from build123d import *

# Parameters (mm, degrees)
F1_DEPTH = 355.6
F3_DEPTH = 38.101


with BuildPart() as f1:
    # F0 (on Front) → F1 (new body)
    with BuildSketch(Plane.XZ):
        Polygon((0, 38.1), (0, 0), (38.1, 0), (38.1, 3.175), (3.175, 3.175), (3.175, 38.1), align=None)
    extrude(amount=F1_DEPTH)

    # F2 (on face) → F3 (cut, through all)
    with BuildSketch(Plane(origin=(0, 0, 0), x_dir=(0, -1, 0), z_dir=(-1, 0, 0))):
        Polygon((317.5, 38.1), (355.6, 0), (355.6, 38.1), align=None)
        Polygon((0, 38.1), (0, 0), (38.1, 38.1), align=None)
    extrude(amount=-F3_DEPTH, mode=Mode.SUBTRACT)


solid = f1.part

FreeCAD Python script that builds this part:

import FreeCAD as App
import Part
import Sketcher
Q = App.Units.Quantity

doc = App.newDocument("Part")
body = doc.addObject("PartDesign::Body", "Body")

sketch1 = doc.addObject("Sketcher::SketchObject", "Sketch")
body.addObject(sketch1)
sketch1.AttachmentSupport = (doc.XZ_Plane, [""])
sketch1.MapMode = "FlatFace"
sketch1.addGeometry([
    Part.LineSegment(App.Vector(0, 38.1, 0), App.Vector(0, 0, 0)),
    Part.LineSegment(App.Vector(0, 0, 0), App.Vector(38.1, 0, 0)),
    Part.LineSegment(App.Vector(38.1, 0, 0), App.Vector(38.1, 3.175, 0)),
    Part.LineSegment(App.Vector(38.1, 3.175, 0), App.Vector(3.175, 3.175, 0)),
    Part.LineSegment(App.Vector(3.175, 3.175, 0), App.Vector(3.175, 38.1, 0)),
    Part.LineSegment(App.Vector(3.175, 38.1, 0), App.Vector(0, 38.1, 0)),
], False)
sketch1.addConstraint([
    Sketcher.Constraint("Coincident", 0, 2, 1, 1),
    Sketcher.Constraint("Coincident", 1, 2, 2, 1),
    Sketcher.Constraint("Coincident", 2, 2, 3, 1),
    Sketcher.Constraint("Coincident", 3, 2, 4, 1),
    Sketcher.Constraint("Coincident", 4, 2, 5, 1),
    Sketcher.Constraint("Coincident", 5, 2, 0, 1),
    Sketcher.Constraint("Vertical", 0),
    Sketcher.Constraint("Horizontal", 1),
    Sketcher.Constraint("Vertical", 2),
    Sketcher.Constraint("Horizontal", 3),
    Sketcher.Constraint("Vertical", 4),
    Sketcher.Constraint("Horizontal", 5),
    Sketcher.Constraint("Coincident", 0, 2, -1, 1),
    Sketcher.Constraint("Equal", 1, 0),
    Sketcher.Constraint("Equal", 5, 2),
    Sketcher.Constraint("DistanceX", 1, 1, 1, 2, Q("1.5 in")),
    Sketcher.Constraint("DistanceX", 3, 2, 3, 1, Q("1.375 in")),
])
pad1 = doc.addObject("PartDesign::Pad", "Pad")
body.addObject(pad1)
pad1.Profile = sketch1
pad1.Length = Q("14 in")

sketch2 = doc.addObject("Sketcher::SketchObject", "Sketch001")
body.addObject(sketch2)
sketch2.AttachmentSupport = (doc.YZ_Plane, [""])
sketch2.MapMode = "FlatFace"
sketch2.addGeometry([
    Part.LineSegment(App.Vector(-317.5, 38.1, 0), App.Vector(-355.6, 0, 0)),
    Part.LineSegment(App.Vector(-355.6, 0, 0), App.Vector(-355.6, 38.1, 0)),
    Part.LineSegment(App.Vector(-355.6, 38.1, 0), App.Vector(-317.5, 38.1, 0)),
    Part.LineSegment(App.Vector(0, 38.1, 0), App.Vector(0, 0, 0)),
    Part.LineSegment(App.Vector(0, 0, 0), App.Vector(-38.1, 38.1, 0)),
    Part.LineSegment(App.Vector(-38.1, 38.1, 0), App.Vector(0, 38.1, 0)),
], False)
sketch2.addConstraint([
    Sketcher.Constraint("Coincident", 0, 2, 1, 1),
    Sketcher.Constraint("Coincident", 1, 2, 2, 1),
    Sketcher.Constraint("Coincident", 2, 2, 0, 1),
    Sketcher.Constraint("Coincident", 3, 2, 4, 1),
    Sketcher.Constraint("Coincident", 4, 2, 5, 1),
    Sketcher.Constraint("Coincident", 5, 2, 3, 1),
    Sketcher.Constraint("Vertical", 1),
    Sketcher.Constraint("Horizontal", 2),
    Sketcher.Constraint("Vertical", 3),
    Sketcher.Constraint("Horizontal", 5),
    Sketcher.Constraint("Coincident", 3, 2, -1, 1),
    Sketcher.Constraint("PointOnObject", 0, 2, -1),
    Sketcher.Constraint("Perpendicular", 0, 4),
    Sketcher.Constraint("Horizontal", 2, 2, 4, 2),
    Sketcher.Constraint("Equal", 2, 5),
    Sketcher.Constraint("DistanceX", 2, 1, 2, 2, Q("1.5 in")),
    Sketcher.Constraint("DistanceX", 0, 2, -1, 1, Q("14 in")),
])
pocket1 = doc.addObject("PartDesign::Pocket", "Pocket")
body.addObject(pocket1)
pocket1.Profile = sketch2
pocket1.Type = "ThroughAll"
pocket1.Reversed = True

doc.recompute()
